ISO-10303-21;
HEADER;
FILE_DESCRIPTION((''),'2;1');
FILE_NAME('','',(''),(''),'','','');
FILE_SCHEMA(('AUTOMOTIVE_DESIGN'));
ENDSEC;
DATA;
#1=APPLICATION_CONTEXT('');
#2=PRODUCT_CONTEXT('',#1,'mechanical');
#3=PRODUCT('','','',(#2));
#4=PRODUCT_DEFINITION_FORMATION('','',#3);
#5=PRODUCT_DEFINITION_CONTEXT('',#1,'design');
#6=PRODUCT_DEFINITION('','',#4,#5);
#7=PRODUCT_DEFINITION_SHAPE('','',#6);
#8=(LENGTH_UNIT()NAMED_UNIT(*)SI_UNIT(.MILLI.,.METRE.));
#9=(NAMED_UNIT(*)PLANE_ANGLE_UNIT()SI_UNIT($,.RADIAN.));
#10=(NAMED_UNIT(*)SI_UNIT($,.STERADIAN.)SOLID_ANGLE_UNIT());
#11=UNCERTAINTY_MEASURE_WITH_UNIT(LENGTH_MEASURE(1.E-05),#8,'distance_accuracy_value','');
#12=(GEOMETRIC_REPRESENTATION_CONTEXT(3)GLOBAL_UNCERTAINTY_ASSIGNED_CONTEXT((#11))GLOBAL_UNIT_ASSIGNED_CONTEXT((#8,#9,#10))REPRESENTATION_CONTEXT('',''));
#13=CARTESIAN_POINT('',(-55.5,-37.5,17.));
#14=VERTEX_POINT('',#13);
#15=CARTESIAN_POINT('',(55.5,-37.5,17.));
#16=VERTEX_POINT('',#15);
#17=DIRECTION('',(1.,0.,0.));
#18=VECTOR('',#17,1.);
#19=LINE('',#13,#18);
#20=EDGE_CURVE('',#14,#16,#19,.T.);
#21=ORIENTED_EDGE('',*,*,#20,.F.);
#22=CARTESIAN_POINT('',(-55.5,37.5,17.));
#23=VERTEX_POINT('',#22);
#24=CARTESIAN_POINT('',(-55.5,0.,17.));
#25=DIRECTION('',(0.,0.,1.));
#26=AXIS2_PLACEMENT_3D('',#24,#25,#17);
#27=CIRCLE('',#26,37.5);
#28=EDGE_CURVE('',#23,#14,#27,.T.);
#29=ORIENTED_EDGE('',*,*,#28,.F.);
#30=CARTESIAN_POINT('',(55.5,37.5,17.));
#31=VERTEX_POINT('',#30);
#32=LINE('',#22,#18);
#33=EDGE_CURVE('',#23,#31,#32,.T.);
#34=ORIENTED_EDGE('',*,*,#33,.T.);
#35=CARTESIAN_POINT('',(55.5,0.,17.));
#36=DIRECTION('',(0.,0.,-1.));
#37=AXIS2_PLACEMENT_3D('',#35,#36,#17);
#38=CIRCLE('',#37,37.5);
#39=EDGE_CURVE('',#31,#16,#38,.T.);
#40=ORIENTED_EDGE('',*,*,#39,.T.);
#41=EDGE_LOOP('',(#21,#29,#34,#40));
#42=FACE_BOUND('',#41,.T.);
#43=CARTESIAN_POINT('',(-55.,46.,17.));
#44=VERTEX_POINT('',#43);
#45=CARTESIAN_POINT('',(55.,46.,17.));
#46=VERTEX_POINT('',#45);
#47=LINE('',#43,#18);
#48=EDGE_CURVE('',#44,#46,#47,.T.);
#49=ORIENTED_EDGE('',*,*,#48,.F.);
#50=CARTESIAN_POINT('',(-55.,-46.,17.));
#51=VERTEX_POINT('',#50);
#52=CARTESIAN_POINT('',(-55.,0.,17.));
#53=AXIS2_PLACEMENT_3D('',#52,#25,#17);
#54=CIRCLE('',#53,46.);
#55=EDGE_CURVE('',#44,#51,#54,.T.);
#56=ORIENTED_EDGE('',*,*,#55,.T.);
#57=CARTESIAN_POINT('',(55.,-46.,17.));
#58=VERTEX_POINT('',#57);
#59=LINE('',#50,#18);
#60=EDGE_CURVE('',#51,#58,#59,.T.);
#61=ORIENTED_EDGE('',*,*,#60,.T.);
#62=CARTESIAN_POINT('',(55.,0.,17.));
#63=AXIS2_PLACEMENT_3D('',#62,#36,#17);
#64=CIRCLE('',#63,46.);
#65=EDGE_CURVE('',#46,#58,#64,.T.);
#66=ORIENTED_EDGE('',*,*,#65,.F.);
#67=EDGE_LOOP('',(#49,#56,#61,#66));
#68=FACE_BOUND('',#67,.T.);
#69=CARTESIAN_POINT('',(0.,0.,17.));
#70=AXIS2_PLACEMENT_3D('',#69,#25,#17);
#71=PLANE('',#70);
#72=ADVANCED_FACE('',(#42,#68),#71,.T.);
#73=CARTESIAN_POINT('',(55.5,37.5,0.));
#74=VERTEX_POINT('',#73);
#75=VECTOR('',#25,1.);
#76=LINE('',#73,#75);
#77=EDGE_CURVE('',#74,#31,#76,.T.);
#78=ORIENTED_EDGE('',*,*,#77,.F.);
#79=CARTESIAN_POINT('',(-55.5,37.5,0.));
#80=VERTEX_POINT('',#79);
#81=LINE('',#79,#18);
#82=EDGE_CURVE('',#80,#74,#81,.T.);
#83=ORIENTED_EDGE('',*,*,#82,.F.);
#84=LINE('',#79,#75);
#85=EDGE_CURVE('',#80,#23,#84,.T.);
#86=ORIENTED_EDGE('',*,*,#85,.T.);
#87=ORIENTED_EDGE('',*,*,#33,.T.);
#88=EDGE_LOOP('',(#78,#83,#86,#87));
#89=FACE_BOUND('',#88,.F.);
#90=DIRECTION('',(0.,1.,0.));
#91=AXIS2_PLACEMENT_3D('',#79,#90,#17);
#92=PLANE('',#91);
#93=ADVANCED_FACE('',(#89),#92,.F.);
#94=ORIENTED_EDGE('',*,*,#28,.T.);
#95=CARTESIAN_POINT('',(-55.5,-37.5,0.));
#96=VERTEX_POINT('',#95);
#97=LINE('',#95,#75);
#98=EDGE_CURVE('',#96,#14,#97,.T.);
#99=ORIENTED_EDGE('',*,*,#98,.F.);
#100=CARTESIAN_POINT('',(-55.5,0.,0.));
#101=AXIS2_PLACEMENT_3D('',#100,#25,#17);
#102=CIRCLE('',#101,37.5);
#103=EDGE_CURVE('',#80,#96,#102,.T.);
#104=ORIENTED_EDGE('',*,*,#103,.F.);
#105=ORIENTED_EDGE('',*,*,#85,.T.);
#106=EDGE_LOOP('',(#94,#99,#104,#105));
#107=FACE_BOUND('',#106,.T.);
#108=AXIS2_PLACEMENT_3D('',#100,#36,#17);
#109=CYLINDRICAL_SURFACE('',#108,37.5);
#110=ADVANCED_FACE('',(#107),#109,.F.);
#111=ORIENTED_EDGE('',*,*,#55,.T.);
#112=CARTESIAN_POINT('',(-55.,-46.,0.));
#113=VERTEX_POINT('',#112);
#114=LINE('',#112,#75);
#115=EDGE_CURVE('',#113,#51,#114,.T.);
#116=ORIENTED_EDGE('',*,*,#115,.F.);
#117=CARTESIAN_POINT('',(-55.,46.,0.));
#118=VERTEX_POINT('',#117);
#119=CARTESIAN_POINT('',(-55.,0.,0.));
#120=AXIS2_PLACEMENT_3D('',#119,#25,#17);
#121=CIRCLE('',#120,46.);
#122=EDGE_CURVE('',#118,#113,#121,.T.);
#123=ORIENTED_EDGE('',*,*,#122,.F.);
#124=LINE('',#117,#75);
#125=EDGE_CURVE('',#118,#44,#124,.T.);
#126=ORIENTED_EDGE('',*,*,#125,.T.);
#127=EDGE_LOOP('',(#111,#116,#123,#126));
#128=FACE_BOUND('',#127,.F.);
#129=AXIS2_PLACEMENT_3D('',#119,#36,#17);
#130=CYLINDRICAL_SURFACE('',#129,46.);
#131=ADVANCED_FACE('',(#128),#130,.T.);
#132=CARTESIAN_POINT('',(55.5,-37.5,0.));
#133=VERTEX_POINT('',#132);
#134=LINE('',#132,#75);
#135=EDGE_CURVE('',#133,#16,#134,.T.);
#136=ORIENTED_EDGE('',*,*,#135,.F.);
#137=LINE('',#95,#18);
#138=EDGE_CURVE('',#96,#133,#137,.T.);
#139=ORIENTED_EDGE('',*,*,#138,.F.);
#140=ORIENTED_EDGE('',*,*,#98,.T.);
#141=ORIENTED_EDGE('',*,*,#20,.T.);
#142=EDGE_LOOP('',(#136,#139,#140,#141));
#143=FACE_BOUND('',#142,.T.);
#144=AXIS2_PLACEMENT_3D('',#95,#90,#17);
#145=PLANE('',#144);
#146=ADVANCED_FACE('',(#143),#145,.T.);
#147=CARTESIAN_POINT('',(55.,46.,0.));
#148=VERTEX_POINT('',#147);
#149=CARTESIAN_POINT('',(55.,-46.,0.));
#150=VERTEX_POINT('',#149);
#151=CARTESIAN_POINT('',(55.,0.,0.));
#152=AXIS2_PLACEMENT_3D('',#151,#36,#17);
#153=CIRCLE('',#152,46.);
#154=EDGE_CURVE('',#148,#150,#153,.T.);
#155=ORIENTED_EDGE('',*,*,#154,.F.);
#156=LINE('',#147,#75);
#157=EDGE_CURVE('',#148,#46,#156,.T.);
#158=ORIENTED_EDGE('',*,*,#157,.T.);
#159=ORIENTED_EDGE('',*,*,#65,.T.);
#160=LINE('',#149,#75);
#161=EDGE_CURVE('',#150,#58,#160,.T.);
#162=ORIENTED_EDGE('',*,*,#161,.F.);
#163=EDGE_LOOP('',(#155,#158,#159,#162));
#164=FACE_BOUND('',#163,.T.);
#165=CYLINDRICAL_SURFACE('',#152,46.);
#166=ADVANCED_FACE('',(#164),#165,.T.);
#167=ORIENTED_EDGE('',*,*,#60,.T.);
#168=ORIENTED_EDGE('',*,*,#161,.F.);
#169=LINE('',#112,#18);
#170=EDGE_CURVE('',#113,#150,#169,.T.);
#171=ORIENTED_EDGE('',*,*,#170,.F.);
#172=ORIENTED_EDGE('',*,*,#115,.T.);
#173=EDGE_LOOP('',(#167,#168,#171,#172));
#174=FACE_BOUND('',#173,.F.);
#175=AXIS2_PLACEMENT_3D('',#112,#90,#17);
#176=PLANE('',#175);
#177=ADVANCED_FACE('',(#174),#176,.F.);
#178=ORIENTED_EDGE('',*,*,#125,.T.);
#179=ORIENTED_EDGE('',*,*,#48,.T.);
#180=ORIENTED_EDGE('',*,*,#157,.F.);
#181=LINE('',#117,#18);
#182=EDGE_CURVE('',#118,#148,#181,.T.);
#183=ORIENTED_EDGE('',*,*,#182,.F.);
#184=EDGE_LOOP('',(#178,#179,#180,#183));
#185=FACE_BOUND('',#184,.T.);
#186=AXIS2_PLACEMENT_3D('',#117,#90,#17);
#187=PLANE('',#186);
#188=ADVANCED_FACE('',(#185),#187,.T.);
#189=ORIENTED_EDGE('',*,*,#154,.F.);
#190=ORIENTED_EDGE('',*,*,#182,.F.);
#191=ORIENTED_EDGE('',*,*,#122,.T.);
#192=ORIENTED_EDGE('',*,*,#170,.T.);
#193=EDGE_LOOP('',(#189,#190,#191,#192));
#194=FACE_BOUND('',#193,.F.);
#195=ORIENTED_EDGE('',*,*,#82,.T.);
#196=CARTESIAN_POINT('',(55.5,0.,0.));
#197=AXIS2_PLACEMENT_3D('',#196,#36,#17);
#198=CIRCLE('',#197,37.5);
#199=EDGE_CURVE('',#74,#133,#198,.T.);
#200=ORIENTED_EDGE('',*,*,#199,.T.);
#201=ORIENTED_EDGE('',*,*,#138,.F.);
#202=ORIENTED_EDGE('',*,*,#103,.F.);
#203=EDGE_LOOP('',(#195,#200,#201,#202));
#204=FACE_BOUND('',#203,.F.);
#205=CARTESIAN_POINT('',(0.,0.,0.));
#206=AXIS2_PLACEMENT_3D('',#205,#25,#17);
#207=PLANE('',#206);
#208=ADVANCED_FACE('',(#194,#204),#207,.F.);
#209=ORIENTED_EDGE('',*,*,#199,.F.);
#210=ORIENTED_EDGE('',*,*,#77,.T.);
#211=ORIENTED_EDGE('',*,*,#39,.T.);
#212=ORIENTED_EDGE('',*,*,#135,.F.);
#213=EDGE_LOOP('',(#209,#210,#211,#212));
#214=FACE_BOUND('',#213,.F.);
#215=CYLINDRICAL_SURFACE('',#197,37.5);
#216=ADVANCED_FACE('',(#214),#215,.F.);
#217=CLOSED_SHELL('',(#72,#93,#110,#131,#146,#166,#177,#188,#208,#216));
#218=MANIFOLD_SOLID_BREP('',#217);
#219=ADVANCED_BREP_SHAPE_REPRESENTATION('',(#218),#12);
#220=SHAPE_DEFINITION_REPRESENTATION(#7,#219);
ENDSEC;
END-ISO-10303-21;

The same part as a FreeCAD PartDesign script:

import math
import FreeCAD as App
import Part
import Sketcher

doc = App.newDocument("Part")
body = doc.addObject("PartDesign::Body", "Body")

# Sketch on XY plane
sketch1 = body.newObject("Sketcher::SketchObject", "Sketch")
sketch1.AttachmentSupport = (doc.getObject("XY_Plane"), [""])
sketch1.MapMode = "FlatFace"
sketch1.addGeometry(Part.ArcOfCircle(Part.Circle(App.Vector(-55, 0, 0), App.Vector(0, 0, 1), 46), math.radians(90), math.radians(270)), False)
sketch1.addGeometry(Part.LineSegment(App.Vector(-55, -46, 0), App.Vector(55, -46, 0)), False)
sketch1.addGeometry(Part.ArcOfCircle(Part.Circle(App.Vector(55, 0, 0), App.Vector(0, 0, 1), 46), math.radians(-90), math.radians(90)), False)
sketch1.addGeometry(Part.LineSegment(App.Vector(55, 46, 0), App.Vector(-55, 46, 0)), False)
sketch1.addGeometry(Part.ArcOfCircle(Part.Circle(App.Vector(-56, 0, 0), App.Vector(0, 0, 1), 38), math.radians(90), math.radians(270)), False)
sketch1.addGeometry(Part.LineSegment(App.Vector(-56, 38, 0), App.Vector(56, 38, 0)), False)
sketch1.addGeometry(Part.ArcOfCircle(Part.Circle(App.Vector(56, 0, 0), App.Vector(0, 0, 1), 38), math.radians(-90), math.radians(90)), False)
sketch1.addGeometry(Part.LineSegment(App.Vector(56, -38, 0), App.Vector(-56, -38, 0)), False)
sketch1.addConstraint(Sketcher.Constraint("Tangent", 0, 2, 1, 1))
sketch1.addConstraint(Sketcher.Constraint("Tangent", 1, 2, 2, 1))
sketch1.addConstraint(Sketcher.Constraint("Tangent", 2, 2, 3, 1))
sketch1.addConstraint(Sketcher.Constraint("Tangent", 3, 2, 0, 1))
sketch1.addConstraint(Sketcher.Constraint("Tangent", 4, 1, 5, 1))
sketch1.addConstraint(Sketcher.Constraint("Tangent", 5, 2, 6, 2))
sketch1.addConstraint(Sketcher.Constraint("Tangent", 6, 1, 7, 1))
sketch1.addConstraint(Sketcher.Constraint("Tangent", 7, 2, 4, 2))
sketch1.addConstraint(Sketcher.Constraint("Horizontal", 1))
sketch1.addConstraint(Sketcher.Constraint("Horizontal", 3))
sketch1.addConstraint(Sketcher.Constraint("Horizontal", 5))
sketch1.addConstraint(Sketcher.Constraint("Horizontal", 7))
sketch1.addConstraint(Sketcher.Constraint("Symmetric", 0, 3, 2, 3, -1, 1))
sketch1.addConstraint(Sketcher.Constraint("Symmetric", 4, 3, 6, 3, -1, 1))
sketch1.addConstraint(Sketcher.Constraint("DistanceX", 0, 3, -1, 1, 55.0))
sketch1.addConstraint(Sketcher.Constraint("Radius", 0, 46.0))
sketch1.addConstraint(Sketcher.Constraint("Radius", 4, 37.5))
sketch1.addConstraint(Sketcher.Constraint("DistanceX", 5, 1, 5, 2, 111.0))
pad1 = body.newObject("PartDesign::Pad", "Pad")
pad1.Profile = sketch1
pad1.Length = 17

doc.recompute()
